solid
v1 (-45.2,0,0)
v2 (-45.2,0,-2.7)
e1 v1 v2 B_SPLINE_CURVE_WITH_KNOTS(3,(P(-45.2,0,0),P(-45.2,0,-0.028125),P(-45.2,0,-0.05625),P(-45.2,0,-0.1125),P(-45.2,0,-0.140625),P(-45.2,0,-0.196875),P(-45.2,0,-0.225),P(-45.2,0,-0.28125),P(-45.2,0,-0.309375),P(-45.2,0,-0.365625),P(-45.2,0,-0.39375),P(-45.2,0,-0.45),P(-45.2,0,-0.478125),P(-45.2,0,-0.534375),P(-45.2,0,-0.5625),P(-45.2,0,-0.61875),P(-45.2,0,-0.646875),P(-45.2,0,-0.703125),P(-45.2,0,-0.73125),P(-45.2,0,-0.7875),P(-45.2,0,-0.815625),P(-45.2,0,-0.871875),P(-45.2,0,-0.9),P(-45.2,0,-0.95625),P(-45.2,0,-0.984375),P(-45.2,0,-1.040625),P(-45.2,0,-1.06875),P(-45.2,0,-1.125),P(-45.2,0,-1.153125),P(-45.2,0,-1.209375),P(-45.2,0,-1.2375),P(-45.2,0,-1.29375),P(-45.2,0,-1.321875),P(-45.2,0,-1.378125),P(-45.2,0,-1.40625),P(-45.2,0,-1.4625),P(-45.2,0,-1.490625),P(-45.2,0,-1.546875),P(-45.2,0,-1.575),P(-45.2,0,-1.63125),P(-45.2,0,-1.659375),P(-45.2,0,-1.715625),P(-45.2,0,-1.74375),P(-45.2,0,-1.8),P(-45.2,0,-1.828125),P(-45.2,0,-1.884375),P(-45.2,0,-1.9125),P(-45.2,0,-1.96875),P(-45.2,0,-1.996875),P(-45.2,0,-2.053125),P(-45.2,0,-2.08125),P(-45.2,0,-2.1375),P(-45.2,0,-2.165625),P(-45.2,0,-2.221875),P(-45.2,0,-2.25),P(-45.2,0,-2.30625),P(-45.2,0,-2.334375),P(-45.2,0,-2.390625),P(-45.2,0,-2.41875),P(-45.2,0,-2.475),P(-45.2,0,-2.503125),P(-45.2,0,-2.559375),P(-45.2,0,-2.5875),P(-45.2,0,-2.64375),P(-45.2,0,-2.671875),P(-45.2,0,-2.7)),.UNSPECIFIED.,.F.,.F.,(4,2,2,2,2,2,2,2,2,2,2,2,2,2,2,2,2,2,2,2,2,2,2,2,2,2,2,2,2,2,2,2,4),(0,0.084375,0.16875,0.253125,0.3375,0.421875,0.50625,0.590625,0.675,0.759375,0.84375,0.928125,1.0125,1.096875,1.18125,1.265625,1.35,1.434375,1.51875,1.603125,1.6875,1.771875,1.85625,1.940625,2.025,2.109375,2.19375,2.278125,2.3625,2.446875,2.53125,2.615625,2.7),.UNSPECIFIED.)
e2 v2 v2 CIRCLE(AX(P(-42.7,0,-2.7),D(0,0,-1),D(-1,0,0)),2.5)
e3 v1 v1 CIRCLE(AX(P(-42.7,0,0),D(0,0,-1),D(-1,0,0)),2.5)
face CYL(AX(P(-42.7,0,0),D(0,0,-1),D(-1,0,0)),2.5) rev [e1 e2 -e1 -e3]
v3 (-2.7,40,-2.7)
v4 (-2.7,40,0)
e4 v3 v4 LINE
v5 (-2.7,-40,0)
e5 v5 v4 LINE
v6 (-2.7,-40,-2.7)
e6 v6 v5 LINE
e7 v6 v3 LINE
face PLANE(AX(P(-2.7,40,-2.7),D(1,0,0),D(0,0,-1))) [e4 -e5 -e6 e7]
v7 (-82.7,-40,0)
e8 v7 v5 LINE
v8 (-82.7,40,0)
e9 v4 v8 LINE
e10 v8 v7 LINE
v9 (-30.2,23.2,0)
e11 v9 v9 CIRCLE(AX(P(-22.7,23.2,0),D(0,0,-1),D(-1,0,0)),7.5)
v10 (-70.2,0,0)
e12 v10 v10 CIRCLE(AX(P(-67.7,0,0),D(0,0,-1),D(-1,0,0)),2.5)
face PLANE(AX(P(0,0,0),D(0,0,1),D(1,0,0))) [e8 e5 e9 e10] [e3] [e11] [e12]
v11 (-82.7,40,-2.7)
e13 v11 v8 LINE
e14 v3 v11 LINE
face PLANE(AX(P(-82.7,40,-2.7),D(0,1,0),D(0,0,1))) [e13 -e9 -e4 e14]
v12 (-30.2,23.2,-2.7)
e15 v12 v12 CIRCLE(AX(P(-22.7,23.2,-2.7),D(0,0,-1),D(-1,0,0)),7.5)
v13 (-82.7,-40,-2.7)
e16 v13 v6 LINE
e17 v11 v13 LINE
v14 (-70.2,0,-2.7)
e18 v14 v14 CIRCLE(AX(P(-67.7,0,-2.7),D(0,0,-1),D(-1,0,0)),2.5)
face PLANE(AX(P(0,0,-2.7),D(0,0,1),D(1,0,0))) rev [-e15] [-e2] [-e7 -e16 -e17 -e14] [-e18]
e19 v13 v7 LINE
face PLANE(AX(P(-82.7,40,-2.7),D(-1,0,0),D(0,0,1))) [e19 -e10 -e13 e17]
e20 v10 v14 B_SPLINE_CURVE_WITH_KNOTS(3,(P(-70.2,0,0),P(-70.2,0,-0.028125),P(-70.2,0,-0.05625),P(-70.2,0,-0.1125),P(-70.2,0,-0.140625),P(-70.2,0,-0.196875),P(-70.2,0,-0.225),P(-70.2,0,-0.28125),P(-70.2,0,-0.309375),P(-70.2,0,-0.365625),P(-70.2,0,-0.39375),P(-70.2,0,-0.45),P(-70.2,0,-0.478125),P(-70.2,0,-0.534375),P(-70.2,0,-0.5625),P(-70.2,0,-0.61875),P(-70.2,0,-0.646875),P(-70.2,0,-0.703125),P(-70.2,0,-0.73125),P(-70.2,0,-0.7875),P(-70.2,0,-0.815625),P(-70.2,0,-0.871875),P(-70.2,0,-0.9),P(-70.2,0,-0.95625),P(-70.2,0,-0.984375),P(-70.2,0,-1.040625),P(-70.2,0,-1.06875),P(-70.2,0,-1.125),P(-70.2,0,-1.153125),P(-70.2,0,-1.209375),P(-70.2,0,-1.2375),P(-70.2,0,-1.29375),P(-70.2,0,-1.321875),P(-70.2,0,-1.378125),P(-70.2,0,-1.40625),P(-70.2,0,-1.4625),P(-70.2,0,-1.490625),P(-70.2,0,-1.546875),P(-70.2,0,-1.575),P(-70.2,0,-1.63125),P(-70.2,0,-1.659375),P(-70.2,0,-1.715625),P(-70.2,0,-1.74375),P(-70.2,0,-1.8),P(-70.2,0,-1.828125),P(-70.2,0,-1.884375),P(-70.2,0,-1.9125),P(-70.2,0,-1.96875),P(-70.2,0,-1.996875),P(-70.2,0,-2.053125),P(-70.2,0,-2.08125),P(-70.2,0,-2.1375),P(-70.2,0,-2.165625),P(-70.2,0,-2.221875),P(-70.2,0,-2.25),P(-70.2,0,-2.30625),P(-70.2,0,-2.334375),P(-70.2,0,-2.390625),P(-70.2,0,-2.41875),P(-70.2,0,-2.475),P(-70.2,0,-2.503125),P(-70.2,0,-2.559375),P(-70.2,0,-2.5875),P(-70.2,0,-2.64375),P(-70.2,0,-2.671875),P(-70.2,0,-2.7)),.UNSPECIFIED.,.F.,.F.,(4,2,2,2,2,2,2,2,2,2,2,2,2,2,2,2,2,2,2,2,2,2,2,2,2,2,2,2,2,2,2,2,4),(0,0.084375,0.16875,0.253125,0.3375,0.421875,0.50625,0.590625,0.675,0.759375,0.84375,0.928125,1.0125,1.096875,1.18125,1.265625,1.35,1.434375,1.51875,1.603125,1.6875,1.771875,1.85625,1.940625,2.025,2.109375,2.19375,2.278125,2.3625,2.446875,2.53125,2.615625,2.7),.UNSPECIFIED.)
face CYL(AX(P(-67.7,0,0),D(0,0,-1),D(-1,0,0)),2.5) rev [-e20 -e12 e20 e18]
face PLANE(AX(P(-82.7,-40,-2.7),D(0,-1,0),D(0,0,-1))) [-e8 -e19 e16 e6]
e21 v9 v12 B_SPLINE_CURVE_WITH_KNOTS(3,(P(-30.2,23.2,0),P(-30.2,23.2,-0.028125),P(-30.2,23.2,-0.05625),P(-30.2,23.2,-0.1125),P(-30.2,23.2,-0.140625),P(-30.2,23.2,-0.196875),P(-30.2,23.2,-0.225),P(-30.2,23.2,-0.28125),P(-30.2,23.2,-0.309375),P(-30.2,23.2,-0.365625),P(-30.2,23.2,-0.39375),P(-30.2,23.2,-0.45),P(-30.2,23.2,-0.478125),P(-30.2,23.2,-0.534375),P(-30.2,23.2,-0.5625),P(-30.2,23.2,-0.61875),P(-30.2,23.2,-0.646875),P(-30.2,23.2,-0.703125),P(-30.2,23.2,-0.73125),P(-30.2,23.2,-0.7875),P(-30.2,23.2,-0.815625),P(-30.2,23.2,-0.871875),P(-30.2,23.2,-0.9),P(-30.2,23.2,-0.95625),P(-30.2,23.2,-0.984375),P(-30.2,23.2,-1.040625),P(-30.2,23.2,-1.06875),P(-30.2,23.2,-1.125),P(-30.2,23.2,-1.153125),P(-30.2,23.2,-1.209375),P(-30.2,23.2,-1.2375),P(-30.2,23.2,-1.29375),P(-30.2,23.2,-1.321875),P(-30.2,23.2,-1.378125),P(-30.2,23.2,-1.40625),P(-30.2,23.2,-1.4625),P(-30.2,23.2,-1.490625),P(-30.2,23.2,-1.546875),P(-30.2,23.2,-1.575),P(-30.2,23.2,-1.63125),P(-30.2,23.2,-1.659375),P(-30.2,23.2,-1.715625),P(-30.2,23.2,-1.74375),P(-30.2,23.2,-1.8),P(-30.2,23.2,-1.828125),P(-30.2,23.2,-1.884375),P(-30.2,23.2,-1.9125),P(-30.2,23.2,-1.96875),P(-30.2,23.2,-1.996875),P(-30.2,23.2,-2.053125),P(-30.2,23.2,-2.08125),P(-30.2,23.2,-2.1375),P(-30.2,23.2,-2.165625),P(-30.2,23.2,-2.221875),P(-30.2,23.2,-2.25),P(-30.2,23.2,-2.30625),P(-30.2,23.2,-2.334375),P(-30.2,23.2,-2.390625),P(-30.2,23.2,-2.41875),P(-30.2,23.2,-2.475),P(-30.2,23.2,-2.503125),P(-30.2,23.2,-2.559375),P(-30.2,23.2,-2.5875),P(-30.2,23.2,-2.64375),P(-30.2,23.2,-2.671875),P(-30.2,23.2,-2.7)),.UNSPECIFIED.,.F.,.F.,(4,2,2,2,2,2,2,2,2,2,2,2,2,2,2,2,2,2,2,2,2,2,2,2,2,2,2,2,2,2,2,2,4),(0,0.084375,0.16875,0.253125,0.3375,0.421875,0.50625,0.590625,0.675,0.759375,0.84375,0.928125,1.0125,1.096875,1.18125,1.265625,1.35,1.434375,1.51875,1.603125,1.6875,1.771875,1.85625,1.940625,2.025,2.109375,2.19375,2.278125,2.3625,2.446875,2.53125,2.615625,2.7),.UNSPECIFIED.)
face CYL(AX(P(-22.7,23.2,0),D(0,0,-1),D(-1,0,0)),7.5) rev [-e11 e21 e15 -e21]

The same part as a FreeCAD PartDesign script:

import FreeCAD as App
import Part
import Sketcher
Q = App.Units.Quantity


def add_polygon(sketch, points):
    """Adds a closed chain of lines whose ends are joined by coincident constraints."""
    first, n = sketch.GeometryCount, len(points)
    for a, b in zip(points, points[1:] + points[:1]):
        sketch.addGeometry(Part.LineSegment(App.Vector(*a, 0), App.Vector(*b, 0)), False)
    for i in range(n):
        sketch.addConstraint(Sketcher.Constraint("Coincident", first + i, 2, first + (i + 1) % n, 1))

doc = App.newDocument("Part")
body = doc.addObject("PartDesign::Body", "Body")

# Sketch on XY plane
sketch1 = body.newObject("Sketcher::SketchObject", "Sketch")
sketch1.AttachmentSupport = (doc.getObject("XY_Plane"), [""])
sketch1.MapMode = "FlatFace"
add_polygon(sketch1, [(-83, 40), (-83, -40), (-3, -40), (-3, 40)])  # lines 0-3
sketch1.addConstraint([
    Sketcher.Constraint("Vertical", 0),
    Sketcher.Constraint("Horizontal", 1),
    Sketcher.Constraint("Vertical", 2),
    Sketcher.Constraint("Horizontal", 3),
    Sketcher.Constraint("Equal", 3, 0),
    Sketcher.Constraint("DistanceX", 1, 1, 1, 2, Q("80 mm")),
    Sketcher.Constraint("DistanceY", 0, 2, -1, 1, Q("40 mm")),
    Sketcher.Constraint("DistanceX", 0, 2, -1, 1, Q("82.7 mm")),
])
pad1 = body.newObject("PartDesign::Pad", "Pad")
pad1.Profile = sketch1
pad1.Length = 2.7
pad1.Reversed = True

# Sketch on XY plane
sketch2 = body.newObject("Sketcher::SketchObject", "Sketch001")
sketch2.AttachmentSupport = (doc.getObject("XY_Plane"), [""])
sketch2.MapMode = "FlatFace"
sketch2.AttachmentOffset = App.Placement(App.Vector(0, 0, -2.7), App.Rotation())
sketch2.addGeometry([
    Part.Circle(App.Vector(-67.7, 0, 0), App.Vector(0, 0, 1), 2.5),
    Part.Circle(App.Vector(-42.7, 0, 0), App.Vector(0, 0, 1), 2.5),
], False)
sketch2.addConstraint([
    Sketcher.Constraint("Equal", 0, 1),
    Sketcher.Constraint("PointOnObject", 0, 3, -1),
    Sketcher.Constraint("PointOnObject", 1, 3, -1),
    Sketcher.Constraint("Diameter", 0, Q("5 mm")),
    Sketcher.Constraint("DistanceX", 0, 3, 1, 3, Q("25 mm")),
    Sketcher.Constraint("DistanceX", 0, 3, -1, 1, Q("67.7 mm")),
])
pocket1 = body.newObject("PartDesign::Pocket", "Pocket")
pocket1.Profile = sketch2
pocket1.Length = 2.7
pocket1.Reversed = True

# Sketch on XY plane
sketch3 = body.newObject("Sketcher::SketchObject", "Sketch002")
sketch3.AttachmentSupport = (doc.getObject("XY_Plane"), [""])
sketch3.MapMode = "FlatFace"
sketch3.AttachmentOffset = App.Placement(App.Vector(0, 0, -2.7), App.Rotation())
sketch3.addGeometry(Part.Circle(App.Vector(-23, 23, 0), App.Vector(0, 0, 1), 8), False)
sketch3.addConstraint([
    Sketcher.Constraint("Diameter", 0, Q("15 mm")),
    Sketcher.Constraint("DistanceX", 0, 3, -1, 1, Q("22.7 mm")),
    Sketcher.Constraint("DistanceY", -1, 1, 0, 3, Q("23.2 mm")),
])
pocket2 = body.newObject("PartDesign::Pocket", "Pocket001")
pocket2.Profile = sketch3
pocket2.Length = 2.7
pocket2.Reversed = True

doc.recompute()
